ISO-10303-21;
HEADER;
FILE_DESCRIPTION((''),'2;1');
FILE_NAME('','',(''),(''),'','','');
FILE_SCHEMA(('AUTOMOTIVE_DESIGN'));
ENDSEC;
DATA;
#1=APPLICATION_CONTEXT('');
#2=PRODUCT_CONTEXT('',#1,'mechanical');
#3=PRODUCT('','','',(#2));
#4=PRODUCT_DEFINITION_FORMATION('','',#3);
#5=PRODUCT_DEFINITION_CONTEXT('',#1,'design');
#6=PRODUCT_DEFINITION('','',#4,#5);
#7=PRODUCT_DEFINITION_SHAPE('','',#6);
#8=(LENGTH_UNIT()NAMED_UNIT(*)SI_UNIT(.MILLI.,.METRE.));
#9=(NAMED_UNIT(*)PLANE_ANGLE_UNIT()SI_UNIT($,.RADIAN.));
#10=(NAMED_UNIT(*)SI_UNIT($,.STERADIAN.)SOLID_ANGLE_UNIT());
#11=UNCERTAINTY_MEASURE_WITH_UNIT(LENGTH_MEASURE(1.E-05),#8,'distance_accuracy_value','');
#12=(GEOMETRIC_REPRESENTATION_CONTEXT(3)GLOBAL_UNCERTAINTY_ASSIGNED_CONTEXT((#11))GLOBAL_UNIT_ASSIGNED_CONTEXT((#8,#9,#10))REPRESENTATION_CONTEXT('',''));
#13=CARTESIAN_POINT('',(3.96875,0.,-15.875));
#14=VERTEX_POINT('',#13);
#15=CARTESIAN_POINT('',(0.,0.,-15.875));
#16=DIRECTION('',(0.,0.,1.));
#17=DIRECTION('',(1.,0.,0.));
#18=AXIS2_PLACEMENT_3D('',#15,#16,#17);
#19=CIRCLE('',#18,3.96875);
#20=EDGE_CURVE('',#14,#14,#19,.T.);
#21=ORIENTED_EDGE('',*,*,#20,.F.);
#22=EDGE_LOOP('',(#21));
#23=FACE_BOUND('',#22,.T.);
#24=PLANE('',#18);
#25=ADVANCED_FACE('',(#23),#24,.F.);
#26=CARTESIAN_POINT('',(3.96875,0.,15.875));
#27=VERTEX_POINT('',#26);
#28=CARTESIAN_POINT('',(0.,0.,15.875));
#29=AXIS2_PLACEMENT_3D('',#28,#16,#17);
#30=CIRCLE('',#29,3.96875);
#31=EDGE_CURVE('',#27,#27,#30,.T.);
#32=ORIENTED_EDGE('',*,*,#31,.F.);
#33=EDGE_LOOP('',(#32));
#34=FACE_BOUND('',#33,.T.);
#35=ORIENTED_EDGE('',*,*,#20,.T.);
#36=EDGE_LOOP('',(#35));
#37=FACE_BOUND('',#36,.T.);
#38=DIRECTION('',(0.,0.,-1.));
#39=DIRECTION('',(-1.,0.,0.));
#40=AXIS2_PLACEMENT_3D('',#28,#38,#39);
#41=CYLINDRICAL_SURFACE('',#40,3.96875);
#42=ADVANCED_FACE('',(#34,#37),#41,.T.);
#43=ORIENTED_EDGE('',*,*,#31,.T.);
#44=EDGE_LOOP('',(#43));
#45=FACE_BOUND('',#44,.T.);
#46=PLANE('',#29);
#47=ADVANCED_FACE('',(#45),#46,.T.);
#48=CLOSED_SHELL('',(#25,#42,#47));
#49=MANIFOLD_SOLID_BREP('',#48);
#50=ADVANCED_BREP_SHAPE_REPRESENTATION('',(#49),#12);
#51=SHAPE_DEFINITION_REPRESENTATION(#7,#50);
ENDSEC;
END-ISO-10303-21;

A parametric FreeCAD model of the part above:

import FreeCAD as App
import Part
import Sketcher
from FreeCAD import Vector
Q = App.Units.Quantity

doc = App.newDocument("Part")
params = doc.addObject("Spreadsheet::Sheet", "Params")
for row, (alias, value) in enumerate([
    ("sketch1_diameter", "0.3125 in"),
    ("pad1_length", "1.25 in"),
], start=1):
    params.set(f"A{row}", alias)
    params.set(f"B{row}", "=" + value)
    params.setAlias(f"B{row}", alias)

body = doc.addObject("PartDesign::Body", "Body")

sketch1 = doc.addObject("Sketcher::SketchObject", "Sketch")
body.addObject(sketch1)
sketch1.AttachmentSupport = (doc.XY_Plane, [""])
sketch1.MapMode = "FlatFace"
sketch1.addGeometry(Part.Circle(Vector(0, 0, 0), Vector(0, 0, 1), 4), False)
sketch1.addConstraint([
    Sketcher.Constraint("Coincident", 0, 3, -1, 1),
    Sketcher.Constraint("Diameter", 0, Q("0.3125 in")),
])
sketch1.setExpression("Constraints[1]", "Params.sketch1_diameter")
pad1 = doc.addObject("PartDesign::Pad", "Pad")
body.addObject(pad1)
pad1.Profile = sketch1
pad1.setExpression("Length", "Params.pad1_length")
pad1.Midplane = True

doc.recompute()
